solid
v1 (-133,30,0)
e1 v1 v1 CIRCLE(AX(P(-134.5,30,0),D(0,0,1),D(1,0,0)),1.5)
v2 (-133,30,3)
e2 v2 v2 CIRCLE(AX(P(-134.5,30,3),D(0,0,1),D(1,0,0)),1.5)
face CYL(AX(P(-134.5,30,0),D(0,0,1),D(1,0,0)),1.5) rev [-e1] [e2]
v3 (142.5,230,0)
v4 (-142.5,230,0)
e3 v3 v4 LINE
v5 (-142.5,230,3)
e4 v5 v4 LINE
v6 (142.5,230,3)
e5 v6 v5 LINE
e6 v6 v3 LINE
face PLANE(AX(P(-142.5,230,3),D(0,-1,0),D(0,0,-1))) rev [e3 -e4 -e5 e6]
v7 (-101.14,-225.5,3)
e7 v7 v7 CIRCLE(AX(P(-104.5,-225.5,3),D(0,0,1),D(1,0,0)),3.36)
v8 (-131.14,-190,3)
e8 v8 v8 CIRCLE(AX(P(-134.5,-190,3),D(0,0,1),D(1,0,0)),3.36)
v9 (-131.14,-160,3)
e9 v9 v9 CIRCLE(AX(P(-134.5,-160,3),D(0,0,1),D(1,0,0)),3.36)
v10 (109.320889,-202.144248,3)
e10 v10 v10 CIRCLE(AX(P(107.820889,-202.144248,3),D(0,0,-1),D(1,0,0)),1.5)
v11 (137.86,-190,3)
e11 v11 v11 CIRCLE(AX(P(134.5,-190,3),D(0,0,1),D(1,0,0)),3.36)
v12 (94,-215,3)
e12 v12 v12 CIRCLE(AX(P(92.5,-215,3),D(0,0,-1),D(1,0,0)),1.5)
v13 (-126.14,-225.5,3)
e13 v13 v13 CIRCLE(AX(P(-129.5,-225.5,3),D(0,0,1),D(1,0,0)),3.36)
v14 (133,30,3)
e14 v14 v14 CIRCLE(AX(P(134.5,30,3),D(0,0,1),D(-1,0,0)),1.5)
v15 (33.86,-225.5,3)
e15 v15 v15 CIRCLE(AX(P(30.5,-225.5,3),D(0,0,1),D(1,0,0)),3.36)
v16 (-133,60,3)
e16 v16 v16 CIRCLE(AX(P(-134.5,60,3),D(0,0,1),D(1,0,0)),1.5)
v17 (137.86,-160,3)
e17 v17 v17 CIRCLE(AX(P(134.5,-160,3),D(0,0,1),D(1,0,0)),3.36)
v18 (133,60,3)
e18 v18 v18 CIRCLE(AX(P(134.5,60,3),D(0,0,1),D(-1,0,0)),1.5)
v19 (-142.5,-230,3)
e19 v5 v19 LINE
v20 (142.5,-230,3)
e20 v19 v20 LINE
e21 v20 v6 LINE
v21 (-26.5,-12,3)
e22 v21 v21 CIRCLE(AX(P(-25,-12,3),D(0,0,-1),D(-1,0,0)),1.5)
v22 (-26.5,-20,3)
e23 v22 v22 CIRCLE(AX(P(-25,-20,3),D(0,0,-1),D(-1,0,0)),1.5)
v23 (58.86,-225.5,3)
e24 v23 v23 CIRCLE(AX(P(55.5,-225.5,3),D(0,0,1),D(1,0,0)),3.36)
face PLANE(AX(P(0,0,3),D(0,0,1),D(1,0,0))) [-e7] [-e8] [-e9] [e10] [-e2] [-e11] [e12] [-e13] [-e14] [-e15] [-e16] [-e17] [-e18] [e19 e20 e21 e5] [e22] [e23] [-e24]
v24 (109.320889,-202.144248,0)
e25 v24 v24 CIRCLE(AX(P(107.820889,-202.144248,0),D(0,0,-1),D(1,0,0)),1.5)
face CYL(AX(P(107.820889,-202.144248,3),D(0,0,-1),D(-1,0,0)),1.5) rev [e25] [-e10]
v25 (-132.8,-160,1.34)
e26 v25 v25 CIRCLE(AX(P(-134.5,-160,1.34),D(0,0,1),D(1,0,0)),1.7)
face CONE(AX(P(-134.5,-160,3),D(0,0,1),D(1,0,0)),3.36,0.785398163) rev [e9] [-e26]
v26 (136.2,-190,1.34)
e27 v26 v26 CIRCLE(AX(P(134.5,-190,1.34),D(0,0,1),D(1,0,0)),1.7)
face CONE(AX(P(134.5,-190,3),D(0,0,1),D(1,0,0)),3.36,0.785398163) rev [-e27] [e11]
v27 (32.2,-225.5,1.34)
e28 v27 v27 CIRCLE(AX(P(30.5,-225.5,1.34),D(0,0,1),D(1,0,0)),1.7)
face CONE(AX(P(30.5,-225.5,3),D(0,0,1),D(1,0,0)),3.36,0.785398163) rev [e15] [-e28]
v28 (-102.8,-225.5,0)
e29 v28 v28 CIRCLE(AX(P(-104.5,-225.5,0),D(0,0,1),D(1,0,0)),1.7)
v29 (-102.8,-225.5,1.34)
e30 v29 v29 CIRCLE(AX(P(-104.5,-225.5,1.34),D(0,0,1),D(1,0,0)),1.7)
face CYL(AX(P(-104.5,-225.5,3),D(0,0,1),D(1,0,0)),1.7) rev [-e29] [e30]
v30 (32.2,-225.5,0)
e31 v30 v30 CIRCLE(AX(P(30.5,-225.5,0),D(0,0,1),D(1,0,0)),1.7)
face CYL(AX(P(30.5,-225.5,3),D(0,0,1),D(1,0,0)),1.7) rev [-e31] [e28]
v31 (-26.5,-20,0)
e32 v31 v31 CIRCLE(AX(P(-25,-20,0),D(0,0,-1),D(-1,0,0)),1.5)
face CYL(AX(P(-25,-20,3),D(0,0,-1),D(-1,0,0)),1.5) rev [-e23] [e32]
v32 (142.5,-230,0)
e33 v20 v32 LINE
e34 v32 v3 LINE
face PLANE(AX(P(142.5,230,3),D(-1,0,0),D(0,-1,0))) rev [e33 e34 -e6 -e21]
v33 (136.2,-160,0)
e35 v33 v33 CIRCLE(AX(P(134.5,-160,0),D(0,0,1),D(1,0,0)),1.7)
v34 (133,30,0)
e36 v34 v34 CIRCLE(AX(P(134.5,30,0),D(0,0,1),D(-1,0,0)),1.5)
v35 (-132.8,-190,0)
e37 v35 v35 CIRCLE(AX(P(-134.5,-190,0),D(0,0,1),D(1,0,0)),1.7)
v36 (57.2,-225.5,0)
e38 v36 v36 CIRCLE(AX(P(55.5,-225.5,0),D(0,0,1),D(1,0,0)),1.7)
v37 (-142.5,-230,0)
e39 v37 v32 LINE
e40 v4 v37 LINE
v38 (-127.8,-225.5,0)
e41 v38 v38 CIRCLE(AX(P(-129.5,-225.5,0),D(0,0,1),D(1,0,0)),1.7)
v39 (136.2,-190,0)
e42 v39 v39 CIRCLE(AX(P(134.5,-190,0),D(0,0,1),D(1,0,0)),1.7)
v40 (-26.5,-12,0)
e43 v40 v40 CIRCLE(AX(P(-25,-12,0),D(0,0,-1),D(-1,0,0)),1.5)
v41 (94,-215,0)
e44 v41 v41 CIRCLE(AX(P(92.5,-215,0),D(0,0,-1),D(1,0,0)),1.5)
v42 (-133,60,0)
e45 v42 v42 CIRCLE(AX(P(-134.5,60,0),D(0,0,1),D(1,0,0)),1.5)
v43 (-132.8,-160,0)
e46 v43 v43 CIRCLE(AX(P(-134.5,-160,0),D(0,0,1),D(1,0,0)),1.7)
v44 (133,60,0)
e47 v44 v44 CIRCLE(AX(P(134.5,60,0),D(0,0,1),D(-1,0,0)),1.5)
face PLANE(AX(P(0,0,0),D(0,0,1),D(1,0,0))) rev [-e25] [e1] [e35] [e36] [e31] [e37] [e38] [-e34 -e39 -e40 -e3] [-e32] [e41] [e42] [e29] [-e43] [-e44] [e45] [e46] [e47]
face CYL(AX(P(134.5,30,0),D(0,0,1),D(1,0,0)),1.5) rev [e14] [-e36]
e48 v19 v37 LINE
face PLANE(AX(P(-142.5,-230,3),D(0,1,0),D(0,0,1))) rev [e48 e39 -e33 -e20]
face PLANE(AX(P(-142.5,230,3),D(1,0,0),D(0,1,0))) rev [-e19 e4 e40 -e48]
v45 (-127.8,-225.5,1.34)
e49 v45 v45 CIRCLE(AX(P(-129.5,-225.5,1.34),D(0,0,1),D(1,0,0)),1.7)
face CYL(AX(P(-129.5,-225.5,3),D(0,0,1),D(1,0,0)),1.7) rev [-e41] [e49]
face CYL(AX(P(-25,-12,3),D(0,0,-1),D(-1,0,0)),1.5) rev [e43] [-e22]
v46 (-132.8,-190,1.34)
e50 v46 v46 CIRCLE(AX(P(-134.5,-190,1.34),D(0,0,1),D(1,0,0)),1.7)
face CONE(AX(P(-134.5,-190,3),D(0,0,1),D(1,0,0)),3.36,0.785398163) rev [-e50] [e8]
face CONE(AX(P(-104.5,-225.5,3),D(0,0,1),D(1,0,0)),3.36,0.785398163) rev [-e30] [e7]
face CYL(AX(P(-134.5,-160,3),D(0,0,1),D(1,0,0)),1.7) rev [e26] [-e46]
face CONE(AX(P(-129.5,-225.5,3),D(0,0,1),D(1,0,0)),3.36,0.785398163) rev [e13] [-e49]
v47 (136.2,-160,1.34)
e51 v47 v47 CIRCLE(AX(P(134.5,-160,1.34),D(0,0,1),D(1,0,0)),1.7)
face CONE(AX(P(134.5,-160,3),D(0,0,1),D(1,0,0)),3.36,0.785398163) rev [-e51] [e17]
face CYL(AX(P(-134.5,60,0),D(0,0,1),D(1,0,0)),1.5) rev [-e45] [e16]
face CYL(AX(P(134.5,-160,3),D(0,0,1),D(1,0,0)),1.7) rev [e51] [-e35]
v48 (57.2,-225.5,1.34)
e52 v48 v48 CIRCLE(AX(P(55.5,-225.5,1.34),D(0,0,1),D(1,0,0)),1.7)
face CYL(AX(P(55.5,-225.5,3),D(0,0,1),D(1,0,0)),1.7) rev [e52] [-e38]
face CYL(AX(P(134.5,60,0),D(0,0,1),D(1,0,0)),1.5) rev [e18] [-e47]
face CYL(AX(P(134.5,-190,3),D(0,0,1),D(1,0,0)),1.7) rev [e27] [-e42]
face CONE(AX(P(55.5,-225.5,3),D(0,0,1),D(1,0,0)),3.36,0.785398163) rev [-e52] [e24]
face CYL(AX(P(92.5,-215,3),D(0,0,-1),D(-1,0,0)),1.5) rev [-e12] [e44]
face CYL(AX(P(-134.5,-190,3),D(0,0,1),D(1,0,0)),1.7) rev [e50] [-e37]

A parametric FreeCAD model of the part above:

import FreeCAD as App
import Part
import Sketcher
from FreeCAD import Vector
Q = App.Units.Quantity

doc = App.newDocument("Part")
params = doc.addObject("Spreadsheet::Sheet", "Params")
for row, (alias, value) in enumerate([
    ("sketch1_width", "285 mm"),
    ("sketch1_height", "460 mm"),
    ("pad1_length", "3 mm"),
    ("sketch2_diameter", "3 mm"),
    ("sketch3_diameter", "3 mm"),
    ("sketch4_diameter", "3 mm"),
    ("sketch5_diameter", "3 mm"),
    ("sketch6_height", "3 mm"),
    ("sketch6_width", "1.7 mm"),
    ("sketch6_width2", "3.36 mm"),
    ("groove_angle", "360 deg"),
    ("linearpattern_pitch", "30 mm"),
    ("linearpattern2_pitch", "269 mm"),
    ("linearpattern3_pitch", "270.667693 mm"),
    ("linearpattern4_pitch", "65.690562 mm"),
    ("linearpattern5_pitch", "72.04339 mm"),
    ("linearpattern6_pitch", "177.52535 mm"),
    ("linearpattern7_pitch", "200.973257 mm"),
], start=1):
    params.set(f"A{row}", alias)
    params.set(f"B{row}", "=" + value)
    params.setAlias(f"B{row}", alias)

body = doc.addObject("PartDesign::Body", "Body")

# Sketch on XY plane
sketch1 = body.newObject("Sketcher::SketchObject", "Sketch")
sketch1.AttachmentSupport = (doc.getObject("XY_Plane"), [""])
sketch1.MapMode = "FlatFace"
sketch1.addGeometry([
    Part.LineSegment(Vector(-142.5, 230, 0), Vector(-142.5, -230, 0)),
    Part.LineSegment(Vector(-142.5, -230, 0), Vector(142.5, -230, 0)),
    Part.LineSegment(Vector(142.5, -230, 0), Vector(142.5, 230, 0)),
    Part.LineSegment(Vector(142.5, 230, 0), Vector(-142.5, 230, 0)),
], False)
sketch1.addConstraint([
    Sketcher.Constraint("Coincident", 0, 2, 1, 1),
    Sketcher.Constraint("Coincident", 1, 2, 2, 1),
    Sketcher.Constraint("Coincident", 2, 2, 3, 1),
    Sketcher.Constraint("Coincident", 3, 2, 0, 1),
    Sketcher.Constraint("Vertical", 0),
    Sketcher.Constraint("Horizontal", 1),
    Sketcher.Constraint("Vertical", 2),
    Sketcher.Constraint("Horizontal", 3),
    Sketcher.Constraint("Symmetric", 0, 2, 2, 2, -1, 1),
    Sketcher.Constraint("DistanceX", 1, 1, 1, 2, 285.0),
    Sketcher.Constraint("DistanceY", 0, 2, 0, 1, 460.0),
])
sketch1.setExpression("Constraints[9]", "Params.sketch1_width")
sketch1.setExpression("Constraints[10]", "Params.sketch1_height")
pad1 = body.newObject("PartDesign::Pad", "Pad")
pad1.Profile = sketch1
pad1.setExpression("Length", "Params.pad1_length")

# Sketch on XY plane
sketch2 = body.newObject("Sketcher::SketchObject", "Sketch001")
sketch2.AttachmentSupport = (doc.getObject("XY_Plane"), [""])
sketch2.MapMode = "FlatFace"
sketch2.AttachmentOffset = App.Placement(Vector(0, 0, 3), App.Rotation())
sketch2.addGeometry([
    Part.Circle(Vector(-134.5, -190, 0), Vector(0, 0, 1), 1.5),  # 0
    Part.Circle(Vector(134.5, -190, 0), Vector(0, 0, 1), 1.5),  # 1
    Part.Circle(Vector(-134.5, -160, 0), Vector(0, 0, 1), 1.5),  # 2
    Part.Circle(Vector(134.5, -160, 0), Vector(0, 0, 1), 1.5),  # 3
    Part.Circle(Vector(-134.5, 30, 0), Vector(0, 0, 1), 1.5),  # 4
    Part.Circle(Vector(134.5, 30, 0), Vector(0, 0, 1), 1.5),  # 5
    Part.Circle(Vector(-134.5, 60, 0), Vector(0, 0, 1), 1.5),  # 6
    Part.Circle(Vector(134.5, 60, 0), Vector(0, 0, 1), 1.5),  # 7
], False)
sketch2.addConstraint([
    Sketcher.Constraint("Equal", 0, 1),
    Sketcher.Constraint("Equal", 1, 2),
    Sketcher.Constraint("Equal", 2, 3),
    Sketcher.Constraint("Equal", 3, 4),
    Sketcher.Constraint("Equal", 4, 5),
    Sketcher.Constraint("Equal", 5, 6),
    Sketcher.Constraint("Equal", 6, 7),
    Sketcher.Constraint("Symmetric", 0, 3, 1, 3, -2),
    Sketcher.Constraint("Symmetric", 2, 3, 3, 3, -2),
    Sketcher.Constraint("Symmetric", 4, 3, 5, 3, -2),
    Sketcher.Constraint("Symmetric", 6, 3, 7, 3, -2),
    Sketcher.Constraint("Vertical", 0, 3, 2, 3),
    Sketcher.Constraint("Vertical", 2, 3, 4, 3),
    Sketcher.Constraint("Vertical", 4, 3, 6, 3),
    Sketcher.Constraint("Diameter", 0, 3.0),
    Sketcher.Constraint("DistanceY", 0, 3, -1, 1, 190.0),
    Sketcher.Constraint("DistanceY", 2, 3, -1, 1, 160.0),
    Sketcher.Constraint("DistanceY", -1, 1, 4, 3, 30.0),
    Sketcher.Constraint("DistanceY", -1, 1, 6, 3, 60.0),
    Sketcher.Constraint("DistanceX", 0, 3, 1, 3, 269.0),
])
sketch2.setExpression("Constraints[14]", "Params.sketch2_diameter")
pocket1 = body.newObject("PartDesign::Pocket", "Pocket")
pocket1.Profile = sketch2
pocket1.Type = "ThroughAll"

# Sketch on XY plane
sketch3 = body.newObject("Sketcher::SketchObject", "Sketch002")
sketch3.AttachmentSupport = (doc.getObject("XY_Plane"), [""])
sketch3.MapMode = "FlatFace"
sketch3.AttachmentOffset = App.Placement(Vector(0, 0, 3), App.Rotation())
sketch3.addGeometry([
    Part.Circle(Vector(-129.5, -225.5, 0), Vector(0, 0, 1), 1.5),
    Part.Circle(Vector(-104.5, -225.5, 0), Vector(0, 0, 1), 1.5),
    Part.Circle(Vector(30.5, -225.5, 0), Vector(0, 0, 1), 1.5),
    Part.Circle(Vector(55.5, -225.5, 0), Vector(0, 0, 1), 1.5),
], False)
sketch3.addConstraint([
    Sketcher.Constraint("Equal", 0, 1),
    Sketcher.Constraint("Equal", 1, 2),
    Sketcher.Constraint("Equal", 2, 3),
    Sketcher.Constraint("Horizontal", 0, 3, 1, 3),
    Sketcher.Constraint("Horizontal", 1, 3, 2, 3),
    Sketcher.Constraint("Horizontal", 2, 3, 3, 3),
    Sketcher.Constraint("Diameter", 0, 3.0),
    Sketcher.Constraint("DistanceX", 0, 3, 1, 3, 25.0),
    Sketcher.Constraint("DistanceX", 1, 3, 2, 3, 135.0),
    Sketcher.Constraint("DistanceX", 2, 3, 3, 3, 25.0),
    Sketcher.Constraint("DistanceX", 0, 3, -1, 1, 129.5),
    Sketcher.Constraint("DistanceY", 0, 3, -1, 1, 225.5),
])
sketch3.setExpression("Constraints[6]", "Params.sketch3_diameter")
pocket2 = body.newObject("PartDesign::Pocket", "Pocket001")
pocket2.Profile = sketch3
pocket2.Type = "ThroughAll"

# Sketch on XY plane
sketch4 = body.newObject("Sketcher::SketchObject", "Sketch003")
sketch4.AttachmentSupport = (doc.getObject("XY_Plane"), [""])
sketch4.MapMode = "FlatFace"
sketch4.addGeometry([
    Part.Circle(Vector(-25, -20, 0), Vector(0, 0, 1), 1.5),
    Part.Circle(Vector(-25, -12, 0), Vector(0, 0, 1), 1.5),
], False)
sketch4.addConstraint([
    Sketcher.Constraint("Equal", 0, 1),
    Sketcher.Constraint("Vertical", 0, 3, 1, 3),
    Sketcher.Constraint("Diameter", 0, 3.0),
    Sketcher.Constraint("DistanceX", 0, 3, -1, 1, 25.0),
    Sketcher.Constraint("DistanceY", 0, 3, -1, 1, 20.0),
    Sketcher.Constraint("DistanceY", 1, 3, -1, 1, 12.0),
])
sketch4.setExpression("Constraints[2]", "Params.sketch4_diameter")
pocket3 = body.newObject("PartDesign::Pocket", "Pocket002")
pocket3.Profile = sketch4
pocket3.Type = "ThroughAll"
pocket3.Reversed = True

# Sketch on XY plane
sketch5 = body.newObject("Sketcher::SketchObject", "Sketch004")
sketch5.AttachmentSupport = (doc.getObject("XY_Plane"), [""])
sketch5.MapMode = "FlatFace"
sketch5.addGeometry([
    Part.Circle(Vector(107.820889, -202.144248, 0), Vector(0, 0, 1), 1.5),
    Part.Circle(Vector(92.5, -215, 0), Vector(0, 0, 1), 1.5),
], False)
sketch5.addConstraint([
    Sketcher.Constraint("Equal", 0, 1),
    Sketcher.Constraint("Diameter", 0, 3.0),
    Sketcher.Constraint("DistanceY", 1, 3, -1, 1, 215.0),
    Sketcher.Constraint("DistanceX", -1, 1, 1, 3, 92.5),
    Sketcher.Constraint("DistanceX", -1, 1, 0, 3, 107.820889),
    Sketcher.Constraint("DistanceY", 0, 3, -1, 1, 202.144248),
])
sketch5.setExpression("Constraints[1]", "Params.sketch5_diameter")
pocket4 = body.newObject("PartDesign::Pocket", "Pocket003")
pocket4.Profile = sketch5
pocket4.Type = "ThroughAll"
pocket4.Reversed = True

# Sketch on YZ plane
sketch6 = body.newObject("Sketcher::SketchObject", "Sketch005")
sketch6.AttachmentSupport = (doc.getObject("YZ_Plane"), [""])
sketch6.MapMode = "FlatFace"
sketch6.AttachmentOffset = App.Placement(Vector(0, 0, -134.5), App.Rotation())
sketch6.addGeometry([
    Part.LineSegment(Vector(-160, 0, 0), Vector(-160, 3, 0)),  # 0
    Part.LineSegment(Vector(-160, 3, 0), Vector(-163.36, 3, 0)),  # 1
    Part.LineSegment(Vector(-163.36, 3, 0), Vector(-161.7, 1.34, 0)),  # 2
    Part.LineSegment(Vector(-161.7, 1.34, 0), Vector(-161.7, 0, 0)),  # 3
    Part.LineSegment(Vector(-161.7, 0, 0), Vector(-160, 0, 0)),  # 4
], False)
sketch6.addGeometry(Part.LineSegment(Vector(-160, 3, 0), Vector(-160, 0, 0)), True)  # axis
sketch6.addConstraint([
    Sketcher.Constraint("Coincident", 0, 2, 1, 1),
    Sketcher.Constraint("Coincident", 1, 2, 2, 1),
    Sketcher.Constraint("Coincident", 2, 2, 3, 1),
    Sketcher.Constraint("Coincident", 3, 2, 4, 1),
    Sketcher.Constraint("Coincident", 4, 2, 0, 1),
    Sketcher.Constraint("Vertical", 0),
    Sketcher.Constraint("Horizontal", 1),
    Sketcher.Constraint("Vertical", 3),
    Sketcher.Constraint("Horizontal", 4),
    Sketcher.Constraint("Vertical", 5),
    Sketcher.Constraint("Coincident", 5, 1, 0, 2),
    Sketcher.Constraint("PointOnObject", 3, 2, -1),
    Sketcher.Constraint("PointOnObject", 5, 2, -1),
    Sketcher.Constraint("DistanceY", 0, 1, 0, 2, 3.0),
    Sketcher.Constraint("Angle", 2, Q("-45 deg")),
    Sketcher.Constraint("DistanceX", 4, 1, 4, 2, 1.7),
    Sketcher.Constraint("DistanceX", 0, 2, -1, 1, 160.0),
    Sketcher.Constraint("DistanceX", 1, 2, 1, 1, 3.36),
])
sketch6.setExpression("Constraints[13]", "Params.sketch6_height")
sketch6.setExpression("Constraints[15]", "Params.sketch6_width")
sketch6.setExpression("Constraints[17]", "Params.sketch6_width2")
groove = body.newObject("PartDesign::Groove", "Groove")
groove.Profile = sketch6
groove.ReferenceAxis = (sketch6, ["Axis0"])
groove.setExpression("Angle", "Params.groove_angle")
doc.recompute()

linearpattern = body.newObject("PartDesign::LinearPattern", "LinearPattern")
linearpattern.Originals = [groove]
linearpattern.Direction = (doc.getObject("Y_Axis"), [""])
linearpattern.Mode = "offset"
linearpattern.setExpression("Offset", "Params.linearpattern_pitch")
linearpattern.Occurrences = 2
linearpattern.Reversed = True
body.Tip = linearpattern
doc.recompute()

linearpattern2 = body.newObject("PartDesign::LinearPattern", "LinearPattern001")
linearpattern2.Originals = [groove]
linearpattern2.Direction = (doc.getObject("X_Axis"), [""])
linearpattern2.Mode = "offset"
linearpattern2.setExpression("Offset", "Params.linearpattern2_pitch")
linearpattern2.Occurrences = 2
body.Tip = linearpattern2
doc.recompute()

datumline = body.newObject("PartDesign::Line", "DatumLine")
datumline.Placement = App.Placement(Vector(0, 0, 0), App.Rotation(Vector(0, 0, 1), Vector(0.993838596, -0.110837018, 0)))
linearpattern3 = body.newObject("PartDesign::LinearPattern", "LinearPattern002")
linearpattern3.Originals = [groove]
linearpattern3.Direction = (datumline, [""])
linearpattern3.Mode = "offset"
linearpattern3.setExpression("Offset", "Params.linearpattern3_pitch")
linearpattern3.Occurrences = 2
body.Tip = linearpattern3
doc.recompute()

datumline2 = body.newObject("PartDesign::Line", "DatumLine001")
datumline2.Placement = App.Placement(Vector(0, 0, 0), App.Rotation(Vector(0, 0, 1), Vector(0.076114434, -0.997099089, 0)))
linearpattern4 = body.newObject("PartDesign::LinearPattern", "LinearPattern003")
linearpattern4.Originals = [groove]
linearpattern4.Direction = (datumline2, [""])
linearpattern4.Mode = "offset"
linearpattern4.setExpression("Offset", "Params.linearpattern4_pitch")
linearpattern4.Occurrences = 2
body.Tip = linearpattern4
doc.recompute()

datumline3 = body.newObject("PartDesign::Line", "DatumLine002")
datumline3.Placement = App.Placement(Vector(0, 0, 0), App.Rotation(Vector(0, 0, 1), Vector(0.41641572, -0.909174322, 0)))
linearpattern5 = body.newObject("PartDesign::LinearPattern", "LinearPattern004")
linearpattern5.Originals = [groove]
linearpattern5.Direction = (datumline3, [""])
linearpattern5.Mode = "offset"
linearpattern5.setExpression("Offset", "Params.linearpattern5_pitch")
linearpattern5.Occurrences = 2
body.Tip = linearpattern5
doc.recompute()

datumline4 = body.newObject("PartDesign::Line", "DatumLine003")
datumline4.Placement = App.Placement(Vector(0, 0, 0), App.Rotation(Vector(0, 0, 1), Vector(0.929444723, -0.36896139, 0)))
linearpattern6 = body.newObject("PartDesign::LinearPattern", "LinearPattern005")
linearpattern6.Originals = [groove]
linearpattern6.Direction = (datumline4, [""])
linearpattern6.Mode = "offset"
linearpattern6.setExpression("Offset", "Params.linearpattern6_pitch")
linearpattern6.Occurrences = 2
body.Tip = linearpattern6
doc.recompute()

datumline5 = body.newObject("PartDesign::Line", "DatumLine004")
datumline5.Placement = App.Placement(Vector(0, 0, 0), App.Rotation(Vector(0, 0, 1), Vector(0.945399417, -0.32591401, 0)))
linearpattern7 = body.newObject("PartDesign::LinearPattern", "LinearPattern006")
linearpattern7.Originals = [groove]
linearpattern7.Direction = (datumline5, [""])
linearpattern7.Mode = "offset"
linearpattern7.setExpression("Offset", "Params.linearpattern7_pitch")
linearpattern7.Occurrences = 2
body.Tip = linearpattern7

doc.recompute()
